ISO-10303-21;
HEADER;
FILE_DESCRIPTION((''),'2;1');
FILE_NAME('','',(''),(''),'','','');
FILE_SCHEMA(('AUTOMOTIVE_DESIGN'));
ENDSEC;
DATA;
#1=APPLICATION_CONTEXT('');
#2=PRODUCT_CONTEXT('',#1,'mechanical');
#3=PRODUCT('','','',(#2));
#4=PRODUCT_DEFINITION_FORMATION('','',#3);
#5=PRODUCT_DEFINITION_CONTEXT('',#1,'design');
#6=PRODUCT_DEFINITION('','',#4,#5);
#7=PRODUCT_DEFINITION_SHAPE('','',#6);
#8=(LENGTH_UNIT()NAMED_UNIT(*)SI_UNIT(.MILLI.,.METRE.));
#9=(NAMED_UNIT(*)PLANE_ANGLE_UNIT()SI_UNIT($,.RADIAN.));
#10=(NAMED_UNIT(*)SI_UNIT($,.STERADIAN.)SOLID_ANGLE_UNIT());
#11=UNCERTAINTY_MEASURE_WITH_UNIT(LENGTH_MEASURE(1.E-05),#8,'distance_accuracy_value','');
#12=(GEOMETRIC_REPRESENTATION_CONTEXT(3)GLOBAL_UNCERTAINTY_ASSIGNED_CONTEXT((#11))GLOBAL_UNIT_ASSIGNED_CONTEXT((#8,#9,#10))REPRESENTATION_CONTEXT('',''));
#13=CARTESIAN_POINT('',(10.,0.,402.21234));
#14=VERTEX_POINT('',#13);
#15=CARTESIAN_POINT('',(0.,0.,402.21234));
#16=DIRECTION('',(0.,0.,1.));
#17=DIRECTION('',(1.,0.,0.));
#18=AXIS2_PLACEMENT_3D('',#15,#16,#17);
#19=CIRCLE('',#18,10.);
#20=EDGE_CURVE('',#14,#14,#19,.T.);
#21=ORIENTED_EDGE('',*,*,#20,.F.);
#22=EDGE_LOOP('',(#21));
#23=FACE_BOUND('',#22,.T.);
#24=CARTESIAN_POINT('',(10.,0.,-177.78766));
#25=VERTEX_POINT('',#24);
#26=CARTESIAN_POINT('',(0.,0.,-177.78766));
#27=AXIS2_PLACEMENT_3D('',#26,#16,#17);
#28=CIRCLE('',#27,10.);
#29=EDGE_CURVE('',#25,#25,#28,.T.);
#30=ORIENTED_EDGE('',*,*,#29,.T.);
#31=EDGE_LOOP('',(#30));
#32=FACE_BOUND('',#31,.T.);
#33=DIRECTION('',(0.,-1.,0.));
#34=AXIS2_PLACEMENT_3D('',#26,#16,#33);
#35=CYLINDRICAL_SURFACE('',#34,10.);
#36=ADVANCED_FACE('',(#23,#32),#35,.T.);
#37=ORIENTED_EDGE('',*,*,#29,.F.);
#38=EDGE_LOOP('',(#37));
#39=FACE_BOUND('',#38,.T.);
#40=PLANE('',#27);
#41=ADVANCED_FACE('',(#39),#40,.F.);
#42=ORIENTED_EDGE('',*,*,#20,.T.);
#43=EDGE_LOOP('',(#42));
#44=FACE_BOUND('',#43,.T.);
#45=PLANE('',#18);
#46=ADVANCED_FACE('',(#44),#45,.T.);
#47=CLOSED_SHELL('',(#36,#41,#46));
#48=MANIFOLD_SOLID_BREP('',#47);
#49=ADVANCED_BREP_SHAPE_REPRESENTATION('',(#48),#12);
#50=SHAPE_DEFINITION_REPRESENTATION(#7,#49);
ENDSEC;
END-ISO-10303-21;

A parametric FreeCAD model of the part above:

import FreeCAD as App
import Part
import Sketcher
Q = App.Units.Quantity

doc = App.newDocument("Part")
body = doc.addObject("PartDesign::Body", "Body")

sketch1 = body.newObject("Sketcher::SketchObject", "Sketch")
sketch1.AttachmentSupport = (doc.getObject("XY_Plane"), [""])
sketch1.MapMode = "FlatFace"
sketch1.AttachmentOffset = App.Placement(App.Vector(0, 0, -177.78766), App.Rotation())
sketch1.addGeometry(Part.Circle(App.Vector(0, 0, 0), App.Vector(0, 0, 1), 10), False)
sketch1.addConstraint(Sketcher.Constraint("Coincident", 0, 3, -1, 1))
sketch1.addConstraint(Sketcher.Constraint("Diameter", 0, Q("20 mm")))

sketch2 = body.newObject("Sketcher::SketchObject", "Sketch001")
sketch2.AttachmentSupport = (doc.getObject("XZ_Plane"), [""])
sketch2.MapMode = "FlatFace"
sketch2.addGeometry(Part.LineSegment(App.Vector(0, -177.78766, 0), App.Vector(0, 402.21234, 0)), False)
sketch2.addConstraint(Sketcher.Constraint("Vertical", 0))
sketch2.addConstraint(Sketcher.Constraint("PointOnObject", 0, 1, -2))
sketch2.addConstraint(Sketcher.Constraint("DistanceY", 0, 1, 0, 2, Q("580 mm")))
sketch2.addConstraint(Sketcher.Constraint("DistanceY", 0, 1, -1, 1, Q("177.78766 mm")))
doc.recompute()

additivepipe = body.newObject("PartDesign::AdditivePipe", "AdditivePipe")
additivepipe.Profile = sketch1
additivepipe.Spine = (sketch2, ["Edge1"])

doc.recompute()
